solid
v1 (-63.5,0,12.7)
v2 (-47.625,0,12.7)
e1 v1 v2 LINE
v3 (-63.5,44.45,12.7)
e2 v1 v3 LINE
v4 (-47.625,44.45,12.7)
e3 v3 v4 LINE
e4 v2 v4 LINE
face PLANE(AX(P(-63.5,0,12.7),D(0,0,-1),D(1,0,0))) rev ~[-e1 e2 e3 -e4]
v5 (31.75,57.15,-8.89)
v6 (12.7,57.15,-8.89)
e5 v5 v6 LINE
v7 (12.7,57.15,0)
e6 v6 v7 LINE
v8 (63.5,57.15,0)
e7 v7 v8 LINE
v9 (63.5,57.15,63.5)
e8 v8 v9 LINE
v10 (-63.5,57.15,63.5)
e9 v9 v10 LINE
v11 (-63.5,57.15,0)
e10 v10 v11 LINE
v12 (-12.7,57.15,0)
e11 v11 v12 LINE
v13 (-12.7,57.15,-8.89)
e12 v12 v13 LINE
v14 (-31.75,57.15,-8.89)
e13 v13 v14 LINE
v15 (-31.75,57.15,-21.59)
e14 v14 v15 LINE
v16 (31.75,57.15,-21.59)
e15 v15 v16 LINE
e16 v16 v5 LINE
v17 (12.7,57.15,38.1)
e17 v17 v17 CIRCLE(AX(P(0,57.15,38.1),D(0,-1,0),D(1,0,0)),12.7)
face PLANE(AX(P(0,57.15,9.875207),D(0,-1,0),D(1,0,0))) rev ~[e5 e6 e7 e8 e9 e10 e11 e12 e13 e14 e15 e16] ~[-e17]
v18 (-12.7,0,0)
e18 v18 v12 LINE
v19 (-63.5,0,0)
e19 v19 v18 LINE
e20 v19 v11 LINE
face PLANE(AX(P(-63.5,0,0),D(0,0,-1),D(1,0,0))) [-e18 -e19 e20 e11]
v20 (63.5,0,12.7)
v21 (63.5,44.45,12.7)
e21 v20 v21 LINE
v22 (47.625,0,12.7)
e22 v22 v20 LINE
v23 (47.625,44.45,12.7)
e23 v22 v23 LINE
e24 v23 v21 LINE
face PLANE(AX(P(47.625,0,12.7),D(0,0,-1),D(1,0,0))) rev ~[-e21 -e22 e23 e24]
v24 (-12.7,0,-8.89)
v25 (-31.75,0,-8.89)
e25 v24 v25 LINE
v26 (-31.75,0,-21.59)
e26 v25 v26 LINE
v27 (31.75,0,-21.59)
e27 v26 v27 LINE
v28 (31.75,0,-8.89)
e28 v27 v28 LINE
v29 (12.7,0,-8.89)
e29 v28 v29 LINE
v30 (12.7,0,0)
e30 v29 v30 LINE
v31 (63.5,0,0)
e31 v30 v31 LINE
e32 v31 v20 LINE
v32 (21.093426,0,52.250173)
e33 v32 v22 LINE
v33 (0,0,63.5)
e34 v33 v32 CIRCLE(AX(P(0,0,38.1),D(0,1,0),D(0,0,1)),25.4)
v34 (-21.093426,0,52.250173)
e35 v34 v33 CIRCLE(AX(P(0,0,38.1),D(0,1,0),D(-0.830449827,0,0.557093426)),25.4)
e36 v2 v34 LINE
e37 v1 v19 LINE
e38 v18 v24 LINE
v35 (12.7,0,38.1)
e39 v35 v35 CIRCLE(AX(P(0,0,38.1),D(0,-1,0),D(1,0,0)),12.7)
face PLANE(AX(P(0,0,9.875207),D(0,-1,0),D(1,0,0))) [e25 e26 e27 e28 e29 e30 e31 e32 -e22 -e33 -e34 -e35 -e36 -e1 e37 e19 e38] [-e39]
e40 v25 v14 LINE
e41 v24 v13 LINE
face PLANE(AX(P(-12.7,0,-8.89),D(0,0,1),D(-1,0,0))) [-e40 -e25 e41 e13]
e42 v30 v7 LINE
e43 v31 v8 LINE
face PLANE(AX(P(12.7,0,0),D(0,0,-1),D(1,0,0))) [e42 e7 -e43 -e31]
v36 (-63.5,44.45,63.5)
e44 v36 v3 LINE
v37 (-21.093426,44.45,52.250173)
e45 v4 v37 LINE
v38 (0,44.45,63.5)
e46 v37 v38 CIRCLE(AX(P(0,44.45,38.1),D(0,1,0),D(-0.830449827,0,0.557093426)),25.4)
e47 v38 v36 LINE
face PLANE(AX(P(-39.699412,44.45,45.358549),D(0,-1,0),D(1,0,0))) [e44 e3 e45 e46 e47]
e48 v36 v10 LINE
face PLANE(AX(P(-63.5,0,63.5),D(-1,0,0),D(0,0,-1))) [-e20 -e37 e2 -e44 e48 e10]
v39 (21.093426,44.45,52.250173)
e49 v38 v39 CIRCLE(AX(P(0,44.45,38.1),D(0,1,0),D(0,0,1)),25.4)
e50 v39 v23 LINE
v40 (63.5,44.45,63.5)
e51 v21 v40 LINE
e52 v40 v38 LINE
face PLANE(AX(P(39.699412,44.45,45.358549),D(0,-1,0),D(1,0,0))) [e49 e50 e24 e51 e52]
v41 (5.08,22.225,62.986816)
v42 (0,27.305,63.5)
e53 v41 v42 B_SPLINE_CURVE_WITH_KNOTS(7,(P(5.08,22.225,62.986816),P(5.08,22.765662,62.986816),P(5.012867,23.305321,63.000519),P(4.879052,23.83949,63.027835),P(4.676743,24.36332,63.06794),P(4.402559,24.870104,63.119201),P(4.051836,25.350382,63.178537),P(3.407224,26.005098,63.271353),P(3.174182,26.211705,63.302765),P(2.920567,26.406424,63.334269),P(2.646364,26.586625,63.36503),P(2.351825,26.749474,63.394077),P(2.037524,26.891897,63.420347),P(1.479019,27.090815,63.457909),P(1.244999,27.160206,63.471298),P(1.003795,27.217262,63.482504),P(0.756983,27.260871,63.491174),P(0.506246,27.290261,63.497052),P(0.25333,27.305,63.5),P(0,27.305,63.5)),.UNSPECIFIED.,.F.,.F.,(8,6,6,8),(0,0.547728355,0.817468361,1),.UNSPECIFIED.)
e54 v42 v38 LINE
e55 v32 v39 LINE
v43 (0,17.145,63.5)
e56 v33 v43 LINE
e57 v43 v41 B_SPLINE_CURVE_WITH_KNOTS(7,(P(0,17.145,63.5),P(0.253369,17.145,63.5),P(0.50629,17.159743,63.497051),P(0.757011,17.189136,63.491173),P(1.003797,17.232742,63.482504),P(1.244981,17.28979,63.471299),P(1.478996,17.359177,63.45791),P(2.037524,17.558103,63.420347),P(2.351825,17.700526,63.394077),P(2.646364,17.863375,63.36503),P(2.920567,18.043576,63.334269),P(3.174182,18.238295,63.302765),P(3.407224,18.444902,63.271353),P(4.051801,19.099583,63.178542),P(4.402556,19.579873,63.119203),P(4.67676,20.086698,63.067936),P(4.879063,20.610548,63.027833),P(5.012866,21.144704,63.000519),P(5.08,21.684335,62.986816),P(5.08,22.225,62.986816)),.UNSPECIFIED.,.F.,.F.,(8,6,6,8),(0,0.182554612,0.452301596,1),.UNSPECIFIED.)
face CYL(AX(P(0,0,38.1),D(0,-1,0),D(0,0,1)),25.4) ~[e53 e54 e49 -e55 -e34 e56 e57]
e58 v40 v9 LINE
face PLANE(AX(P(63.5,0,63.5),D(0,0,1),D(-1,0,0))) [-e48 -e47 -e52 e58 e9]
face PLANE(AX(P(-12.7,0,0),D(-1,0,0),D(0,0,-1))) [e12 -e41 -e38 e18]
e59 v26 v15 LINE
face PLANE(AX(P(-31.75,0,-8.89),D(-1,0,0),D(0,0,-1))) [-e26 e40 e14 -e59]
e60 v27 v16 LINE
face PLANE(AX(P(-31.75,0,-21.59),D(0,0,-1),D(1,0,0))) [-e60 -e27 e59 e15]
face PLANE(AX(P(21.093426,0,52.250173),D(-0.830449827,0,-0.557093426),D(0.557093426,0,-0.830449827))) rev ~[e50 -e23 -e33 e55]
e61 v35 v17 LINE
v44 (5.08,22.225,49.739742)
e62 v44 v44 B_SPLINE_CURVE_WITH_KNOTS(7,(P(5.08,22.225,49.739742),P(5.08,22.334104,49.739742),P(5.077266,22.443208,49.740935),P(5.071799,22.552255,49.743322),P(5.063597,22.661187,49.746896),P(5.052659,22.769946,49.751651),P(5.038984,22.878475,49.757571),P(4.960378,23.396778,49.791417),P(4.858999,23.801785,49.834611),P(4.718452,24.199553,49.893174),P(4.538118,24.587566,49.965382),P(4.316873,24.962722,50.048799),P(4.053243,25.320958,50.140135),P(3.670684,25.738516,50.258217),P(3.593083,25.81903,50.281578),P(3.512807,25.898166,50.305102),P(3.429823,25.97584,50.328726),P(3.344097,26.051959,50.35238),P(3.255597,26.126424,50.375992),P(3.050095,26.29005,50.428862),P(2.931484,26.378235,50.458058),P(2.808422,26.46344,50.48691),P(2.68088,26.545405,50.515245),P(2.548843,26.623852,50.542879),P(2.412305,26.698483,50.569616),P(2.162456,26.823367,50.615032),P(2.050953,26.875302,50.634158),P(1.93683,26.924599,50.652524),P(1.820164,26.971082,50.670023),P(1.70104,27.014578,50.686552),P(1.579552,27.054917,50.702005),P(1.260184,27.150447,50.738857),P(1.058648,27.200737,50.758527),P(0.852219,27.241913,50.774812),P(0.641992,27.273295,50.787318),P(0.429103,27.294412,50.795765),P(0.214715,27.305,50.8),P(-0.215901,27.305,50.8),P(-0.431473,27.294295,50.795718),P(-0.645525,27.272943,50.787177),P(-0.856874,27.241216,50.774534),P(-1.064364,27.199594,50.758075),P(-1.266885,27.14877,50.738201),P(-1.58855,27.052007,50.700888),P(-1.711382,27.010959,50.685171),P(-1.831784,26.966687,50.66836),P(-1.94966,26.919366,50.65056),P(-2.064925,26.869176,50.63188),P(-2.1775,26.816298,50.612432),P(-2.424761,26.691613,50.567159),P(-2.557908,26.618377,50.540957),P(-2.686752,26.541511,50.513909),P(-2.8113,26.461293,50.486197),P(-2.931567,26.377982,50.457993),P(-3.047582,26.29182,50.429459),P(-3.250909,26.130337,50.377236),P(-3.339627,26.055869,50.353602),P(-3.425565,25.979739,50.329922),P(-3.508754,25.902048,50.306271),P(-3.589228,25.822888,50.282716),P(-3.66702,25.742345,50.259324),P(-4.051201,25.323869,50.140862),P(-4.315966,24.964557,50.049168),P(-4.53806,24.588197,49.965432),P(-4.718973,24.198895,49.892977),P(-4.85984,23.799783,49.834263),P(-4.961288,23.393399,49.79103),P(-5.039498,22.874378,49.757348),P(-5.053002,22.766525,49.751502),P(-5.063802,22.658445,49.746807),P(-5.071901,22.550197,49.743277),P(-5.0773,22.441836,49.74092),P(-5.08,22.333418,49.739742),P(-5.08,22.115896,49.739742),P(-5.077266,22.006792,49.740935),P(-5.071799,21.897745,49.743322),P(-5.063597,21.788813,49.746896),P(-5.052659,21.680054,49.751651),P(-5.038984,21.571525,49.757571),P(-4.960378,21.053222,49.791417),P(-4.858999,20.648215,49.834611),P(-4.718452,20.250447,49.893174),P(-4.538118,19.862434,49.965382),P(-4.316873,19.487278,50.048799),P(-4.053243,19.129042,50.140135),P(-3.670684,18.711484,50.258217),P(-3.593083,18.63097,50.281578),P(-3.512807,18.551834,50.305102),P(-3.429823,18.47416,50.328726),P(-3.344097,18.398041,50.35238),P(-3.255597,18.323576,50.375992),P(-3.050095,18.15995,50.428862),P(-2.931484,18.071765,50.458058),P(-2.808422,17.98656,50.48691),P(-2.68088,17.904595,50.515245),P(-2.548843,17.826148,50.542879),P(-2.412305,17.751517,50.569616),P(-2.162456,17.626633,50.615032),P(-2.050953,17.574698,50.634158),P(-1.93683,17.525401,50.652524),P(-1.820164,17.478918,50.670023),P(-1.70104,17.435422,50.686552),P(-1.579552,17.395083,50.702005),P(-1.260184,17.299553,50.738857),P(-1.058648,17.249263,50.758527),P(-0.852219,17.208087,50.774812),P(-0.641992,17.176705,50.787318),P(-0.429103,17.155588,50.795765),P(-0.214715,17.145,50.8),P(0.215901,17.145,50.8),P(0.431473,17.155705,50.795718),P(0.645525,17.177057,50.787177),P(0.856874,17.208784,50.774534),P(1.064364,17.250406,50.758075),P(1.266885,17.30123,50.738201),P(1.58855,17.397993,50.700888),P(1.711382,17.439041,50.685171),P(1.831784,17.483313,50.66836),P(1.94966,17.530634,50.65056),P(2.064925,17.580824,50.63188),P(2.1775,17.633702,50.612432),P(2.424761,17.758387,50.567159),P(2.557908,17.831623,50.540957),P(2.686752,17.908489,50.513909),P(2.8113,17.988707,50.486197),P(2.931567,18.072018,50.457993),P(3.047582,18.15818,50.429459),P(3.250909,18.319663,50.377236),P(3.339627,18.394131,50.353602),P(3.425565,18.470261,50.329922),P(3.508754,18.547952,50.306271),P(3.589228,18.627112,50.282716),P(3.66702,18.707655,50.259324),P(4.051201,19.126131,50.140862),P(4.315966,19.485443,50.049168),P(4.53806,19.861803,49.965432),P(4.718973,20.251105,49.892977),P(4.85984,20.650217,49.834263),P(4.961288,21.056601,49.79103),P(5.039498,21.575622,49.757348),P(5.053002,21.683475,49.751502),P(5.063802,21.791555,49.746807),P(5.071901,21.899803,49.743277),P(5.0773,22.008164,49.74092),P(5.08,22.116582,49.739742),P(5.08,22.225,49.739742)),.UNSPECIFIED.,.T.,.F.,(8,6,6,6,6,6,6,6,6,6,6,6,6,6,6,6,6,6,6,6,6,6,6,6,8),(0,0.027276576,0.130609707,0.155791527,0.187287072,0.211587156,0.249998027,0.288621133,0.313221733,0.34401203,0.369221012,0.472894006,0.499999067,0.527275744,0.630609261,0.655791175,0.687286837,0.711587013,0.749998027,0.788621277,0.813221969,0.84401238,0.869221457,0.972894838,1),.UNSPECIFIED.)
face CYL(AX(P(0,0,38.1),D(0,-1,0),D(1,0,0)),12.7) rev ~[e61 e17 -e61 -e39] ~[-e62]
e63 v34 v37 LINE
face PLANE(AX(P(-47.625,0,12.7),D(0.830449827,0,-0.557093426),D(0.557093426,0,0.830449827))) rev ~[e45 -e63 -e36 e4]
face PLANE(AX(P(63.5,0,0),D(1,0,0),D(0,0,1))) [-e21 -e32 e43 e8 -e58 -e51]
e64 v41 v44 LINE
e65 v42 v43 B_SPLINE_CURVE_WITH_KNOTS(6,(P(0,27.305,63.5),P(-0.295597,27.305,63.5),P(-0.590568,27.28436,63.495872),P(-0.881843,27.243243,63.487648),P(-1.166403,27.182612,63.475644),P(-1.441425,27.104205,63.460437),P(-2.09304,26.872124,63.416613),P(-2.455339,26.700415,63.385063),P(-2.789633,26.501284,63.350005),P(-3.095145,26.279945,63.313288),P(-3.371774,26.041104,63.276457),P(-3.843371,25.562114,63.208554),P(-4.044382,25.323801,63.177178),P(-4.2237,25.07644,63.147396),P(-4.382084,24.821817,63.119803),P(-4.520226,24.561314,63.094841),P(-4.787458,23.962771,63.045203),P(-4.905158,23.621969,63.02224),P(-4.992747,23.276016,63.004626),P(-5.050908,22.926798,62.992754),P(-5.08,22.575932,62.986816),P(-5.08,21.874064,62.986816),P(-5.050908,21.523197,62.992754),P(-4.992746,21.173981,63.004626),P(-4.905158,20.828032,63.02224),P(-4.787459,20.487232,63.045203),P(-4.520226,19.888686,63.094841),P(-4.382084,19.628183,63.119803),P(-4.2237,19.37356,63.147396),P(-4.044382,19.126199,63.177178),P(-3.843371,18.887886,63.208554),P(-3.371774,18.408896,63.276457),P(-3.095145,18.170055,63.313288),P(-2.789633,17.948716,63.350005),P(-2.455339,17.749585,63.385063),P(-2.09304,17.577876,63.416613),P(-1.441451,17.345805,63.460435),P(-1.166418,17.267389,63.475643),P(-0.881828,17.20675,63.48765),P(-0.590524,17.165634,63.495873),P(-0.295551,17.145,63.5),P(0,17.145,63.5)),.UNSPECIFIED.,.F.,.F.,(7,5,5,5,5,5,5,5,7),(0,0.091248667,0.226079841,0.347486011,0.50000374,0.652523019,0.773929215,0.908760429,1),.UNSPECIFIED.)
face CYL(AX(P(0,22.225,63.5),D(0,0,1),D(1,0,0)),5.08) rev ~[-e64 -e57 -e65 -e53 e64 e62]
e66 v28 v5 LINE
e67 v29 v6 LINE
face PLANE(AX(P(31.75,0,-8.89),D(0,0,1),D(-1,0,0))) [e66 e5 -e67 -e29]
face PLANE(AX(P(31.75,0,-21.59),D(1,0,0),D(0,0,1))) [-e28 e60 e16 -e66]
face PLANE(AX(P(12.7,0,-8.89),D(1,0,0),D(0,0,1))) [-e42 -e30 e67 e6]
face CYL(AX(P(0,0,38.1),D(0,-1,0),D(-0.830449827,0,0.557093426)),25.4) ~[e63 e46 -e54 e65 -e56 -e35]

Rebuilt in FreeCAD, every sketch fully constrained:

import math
import FreeCAD as App
import Part
import Sketcher

V = App.Vector
Q = App.Units.Quantity


def add_polygon(sketch, points):
    """Adds a closed chain of lines whose ends are joined by coincident constraints."""
    first, n = sketch.GeometryCount, len(points)
    for a, b in zip(points, points[1:] + points[:1]):
        sketch.addGeometry(Part.LineSegment(App.Vector(*a, 0), App.Vector(*b, 0)), False)
    for i in range(n):
        sketch.addConstraint(Sketcher.Constraint("Coincident", first + i, 2, first + (i + 1) % n, 1))

doc = App.newDocument("Part")
body = doc.addObject("PartDesign::Body", "Body")

sketch1 = doc.addObject("Sketcher::SketchObject", "Sketch")
body.addObject(sketch1)
sketch1.AttachmentSupport = (doc.XZ_Plane, [""])
sketch1.MapMode = "FlatFace"
add_polygon(sketch1, [(-32, -9), (-32, -22), (32, -22), (32, -9), (13, -9), (13, 0), (64, 0), (64, 64), (-64, 64), (-64, 0), (-13, 0), (-13, -9)])
sketch1.addGeometry(Part.Circle(V(0, 38, 0), V(0, 0, 1), 13), False)
sketch1.addConstraint([
    Sketcher.Constraint("Vertical", 0),
    Sketcher.Constraint("Horizontal", 1),
    Sketcher.Constraint("Vertical", 2),
    Sketcher.Constraint("Horizontal", 3),
    Sketcher.Constraint("Vertical", 4),
    Sketcher.Constraint("Horizontal", 5),
    Sketcher.Constraint("Vertical", 6),
    Sketcher.Constraint("Horizontal", 7),
    Sketcher.Constraint("Vertical", 8),
    Sketcher.Constraint("Horizontal", 9),
    Sketcher.Constraint("Vertical", 10),
    Sketcher.Constraint("Horizontal", 11),
    Sketcher.Constraint("Symmetric", 5, 2, 8, 2, -1, 1),
    Sketcher.Constraint("Symmetric", 4, 2, 9, 2, -2),
    Sketcher.Constraint("Symmetric", 2, 2, 11, 2, -2),
    Sketcher.Constraint("PointOnObject", 12, 3, -2),
    Sketcher.Constraint("Equal", 1, 6),
    Sketcher.Constraint("Diameter", 12, Q("1 in")),
    Sketcher.Constraint("DistanceX", 5, 1, 5, 2, Q("2 in")),
    Sketcher.Constraint("DistanceX", 7, 2, 7, 1, Q("5 in")),
    Sketcher.Constraint("DistanceX", 1, 1, 1, 2, Q("2.5 in")),
    Sketcher.Constraint("DistanceY", 0, 2, 0, 1, Q("0.5 in")),
    Sketcher.Constraint("DistanceY", 12, 3, 6, 2, Q("1 in")),
    Sketcher.Constraint("DistanceY", 4, 1, 4, 2, Q("0.35 in")),
])
pad1 = doc.addObject("PartDesign::Pad", "Pad")
body.addObject(pad1)
pad1.Profile = sketch1
pad1.Length = Q("2.25 in")
pad1.Reversed = True

sketch2 = doc.addObject("Sketcher::SketchObject", "Sketch001")
body.addObject(sketch2)
sketch2.AttachmentSupport = (doc.XZ_Plane, [""])
sketch2.MapMode = "FlatFace"
sketch2.addGeometry([
    Part.LineSegment(V(-64, 64, 0), V(-64, 13, 0)),
    Part.LineSegment(V(-64, 13, 0), V(-48, 13, 0)),
    Part.LineSegment(V(-48, 13, 0), V(-21, 52, 0)),
    Part.ArcOfCircle(Part.Circle(V(0, 38, 0), V(0, 0, 1), 25), math.radians(90), math.radians(146)),
    Part.LineSegment(V(0, 64, 0), V(-64, 64, 0)),
    Part.LineSegment(V(48, 13, 0), V(64, 13, 0)),
    Part.LineSegment(V(64, 13, 0), V(64, 64, 0)),
    Part.LineSegment(V(64, 64, 0), V(0, 64, 0)),
    Part.ArcOfCircle(Part.Circle(V(0, 38, 0), V(0, 0, 1), 25), math.radians(34), math.radians(90)),
    Part.LineSegment(V(21, 52, 0), V(48, 13, 0)),
], False)
sketch2.addConstraint([
    Sketcher.Constraint("Coincident", 0, 2, 1, 1),
    Sketcher.Constraint("Coincident", 1, 2, 2, 1),
    Sketcher.Constraint("Tangent", 2, 2, 3, 2),
    Sketcher.Constraint("Tangent", 3, 1, 4, 1),
    Sketcher.Constraint("Coincident", 4, 2, 0, 1),
    Sketcher.Constraint("Coincident", 5, 2, 6, 1),
    Sketcher.Constraint("Coincident", 6, 2, 7, 1),
    Sketcher.Constraint("Tangent", 7, 2, 8, 2),
    Sketcher.Constraint("Tangent", 8, 1, 9, 1),
    Sketcher.Constraint("Coincident", 9, 2, 5, 1),
    Sketcher.Constraint("Vertical", 0),
    Sketcher.Constraint("Horizontal", 1),
    Sketcher.Constraint("Horizontal", 4),
    Sketcher.Constraint("Horizontal", 5),
    Sketcher.Constraint("Vertical", 6),
    Sketcher.Constraint("Horizontal", 7),
    Sketcher.Constraint("Coincident", 8, 3, 3, 3),
    Sketcher.Constraint("Equal", 3, 8),
    Sketcher.Constraint("Symmetric", 0, 2, 5, 2, -2),
    Sketcher.Constraint("Symmetric", 2, 2, 8, 1, -2),
    Sketcher.Constraint("Radius", 3, Q("1 in")),
    Sketcher.Constraint("DistanceY", 0, 2, 0, 1, Q("2 in")),
    Sketcher.Constraint("DistanceX", 4, 2, 4, 1, Q("2.5 in")),
    Sketcher.Constraint("DistanceY", -1, 1, 3, 3, Q("1.5 in")),
    Sketcher.Constraint("DistanceX", 1, 1, 1, 2, Q("0.625 in")),
])
pocket1 = doc.addObject("PartDesign::Pocket", "Pocket")
body.addObject(pocket1)
pocket1.Profile = sketch2
pocket1.Length = Q("1.75 in")

sketch3 = doc.addObject("Sketcher::SketchObject", "Sketch002")
body.addObject(sketch3)
sketch3.AttachmentSupport = (doc.XY_Plane, [""])
sketch3.MapMode = "FlatFace"
sketch3.AttachmentOffset = App.Placement(V(0, 0, 2.5 * 25.4), App.Rotation())
sketch3.addGeometry(Part.Circle(V(0, 22, 0), V(0, 0, 1), 5), False)
sketch3.addConstraint([
    Sketcher.Constraint("PointOnObject", 0, 3, -2),
    Sketcher.Constraint("Diameter", 0, Q("0.4 in")),
    Sketcher.Constraint("DistanceY", -1, 1, 0, 3, Q("0.875 in")),
])
pocket2 = doc.addObject("PartDesign::Pocket", "Pocket001")
body.addObject(pocket2)
pocket2.Profile = sketch3
pocket2.Length = 13.761258

doc.recompute()
